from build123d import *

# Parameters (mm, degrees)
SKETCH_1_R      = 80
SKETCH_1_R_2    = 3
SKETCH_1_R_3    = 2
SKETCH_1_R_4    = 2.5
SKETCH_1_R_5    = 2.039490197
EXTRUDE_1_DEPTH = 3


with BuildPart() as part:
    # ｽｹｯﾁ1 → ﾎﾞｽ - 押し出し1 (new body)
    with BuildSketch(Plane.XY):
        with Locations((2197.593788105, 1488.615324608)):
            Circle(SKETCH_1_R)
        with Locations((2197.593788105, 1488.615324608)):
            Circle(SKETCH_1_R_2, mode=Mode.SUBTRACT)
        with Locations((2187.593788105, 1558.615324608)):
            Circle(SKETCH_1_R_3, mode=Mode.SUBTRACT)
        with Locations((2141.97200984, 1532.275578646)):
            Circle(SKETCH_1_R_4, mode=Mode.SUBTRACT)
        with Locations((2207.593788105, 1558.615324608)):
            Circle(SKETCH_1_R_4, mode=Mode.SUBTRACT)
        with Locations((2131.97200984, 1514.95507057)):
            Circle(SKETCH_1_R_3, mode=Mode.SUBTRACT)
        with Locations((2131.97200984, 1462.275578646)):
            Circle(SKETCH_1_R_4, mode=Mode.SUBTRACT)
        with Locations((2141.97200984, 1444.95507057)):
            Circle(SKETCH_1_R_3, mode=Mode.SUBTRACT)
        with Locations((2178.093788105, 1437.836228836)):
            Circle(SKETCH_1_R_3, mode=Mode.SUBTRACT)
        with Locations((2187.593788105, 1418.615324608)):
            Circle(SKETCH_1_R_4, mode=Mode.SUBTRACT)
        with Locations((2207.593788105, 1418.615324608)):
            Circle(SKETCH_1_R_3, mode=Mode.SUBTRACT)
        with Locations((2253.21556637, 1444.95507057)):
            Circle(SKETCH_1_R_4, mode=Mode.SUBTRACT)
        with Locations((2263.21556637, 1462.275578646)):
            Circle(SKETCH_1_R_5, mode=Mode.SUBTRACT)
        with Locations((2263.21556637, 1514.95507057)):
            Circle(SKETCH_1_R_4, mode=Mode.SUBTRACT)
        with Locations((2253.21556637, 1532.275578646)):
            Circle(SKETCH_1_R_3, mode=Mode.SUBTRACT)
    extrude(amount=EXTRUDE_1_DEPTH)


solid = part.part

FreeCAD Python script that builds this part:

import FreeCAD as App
import Part
import Sketcher

V = App.Vector

doc = App.newDocument("Part")
body = doc.addObject("PartDesign::Body", "Body")

# Sketch on XY plane
sketch1 = body.newObject("Sketcher::SketchObject", "Sketch")
sketch1.AttachmentSupport = (doc.getObject("XY_Plane"), [""])
sketch1.MapMode = "FlatFace"
sketch1.addGeometry(Part.Circle(V(2197.6, 1488.6, 0), V(0, 0, 1), 80), False)
sketch1.addGeometry(Part.Circle(V(2142, 1445, 0), V(0, 0, 1), 2), False)
sketch1.addGeometry(Part.Circle(V(2187.6, 1418.6, 0), V(0, 0, 1), 2.5), False)
sketch1.addGeometry(Part.Circle(V(2178.1, 1437.8, 0), V(0, 0, 1), 2), False)
sketch1.addGeometry(Part.Circle(V(2132, 1462.3, 0), V(0, 0, 1), 2.5), False)
sketch1.addGeometry(Part.Circle(V(2207.6, 1418.6, 0), V(0, 0, 1), 2), False)
sketch1.addGeometry(Part.Circle(V(2253.2, 1445, 0), V(0, 0, 1), 2.5), False)
sketch1.addGeometry(Part.Circle(V(2263.2, 1462.3, 0), V(0, 0, 1), 2), False)
sketch1.addGeometry(Part.Circle(V(2132, 1515, 0), V(0, 0, 1), 2), False)
sketch1.addGeometry(Part.Circle(V(2142, 1532.3, 0), V(0, 0, 1), 2.5), False)
sketch1.addGeometry(Part.Circle(V(2187.6, 1558.6, 0), V(0, 0, 1), 2), False)
sketch1.addGeometry(Part.Circle(V(2197.6, 1488.6, 0), V(0, 0, 1), 3), False)
sketch1.addGeometry(Part.Circle(V(2263.2, 1515, 0), V(0, 0, 1), 2.5), False)
sketch1.addGeometry(Part.Circle(V(2207.6, 1558.6, 0), V(0, 0, 1), 2.5), False)
sketch1.addGeometry(Part.Circle(V(2253.2, 1532.3, 0), V(0, 0, 1), 2), False)
sketch1.addConstraint(Sketcher.Constraint("Coincident", 11, 3, 0, 3))
sketch1.addConstraint(Sketcher.Constraint("Equal", 1, 3))
sketch1.addConstraint(Sketcher.Constraint("Equal", 2, 4))
sketch1.addConstraint(Sketcher.Constraint("Equal", 3, 5))
sketch1.addConstraint(Sketcher.Constraint("Equal", 4, 6))
sketch1.addConstraint(Sketcher.Constraint("Equal", 5, 8))
sketch1.addConstraint(Sketcher.Constraint("Equal", 6, 9))
sketch1.addConstraint(Sketcher.Constraint("Equal", 8, 10))
sketch1.addConstraint(Sketcher.Constraint("Equal", 9, 12))
sketch1.addConstraint(Sketcher.Constraint("Equal", 12, 13))
sketch1.addConstraint(Sketcher.Constraint("Equal", 10, 14))
sketch1.addConstraint(Sketcher.Constraint("Horizontal", 2, 3, 5, 3))
sketch1.addConstraint(Sketcher.Constraint("Horizontal", 1, 3, 6, 3))
sketch1.addConstraint(Sketcher.Constraint("Horizontal", 4, 3, 7, 3))
sketch1.addConstraint(Sketcher.Constraint("Horizontal", 8, 3, 12, 3))
sketch1.addConstraint(Sketcher.Constraint("Horizontal", 10, 3, 13, 3))
sketch1.addConstraint(Sketcher.Constraint("Horizontal", 9, 3, 14, 3))
sketch1.addConstraint(Sketcher.Constraint("Vertical", 4, 3, 8, 3))
sketch1.addConstraint(Sketcher.Constraint("Vertical", 1, 3, 9, 3))
sketch1.addConstraint(Sketcher.Constraint("Vertical", 2, 3, 10, 3))
sketch1.addConstraint(Sketcher.Constraint("Vertical", 7, 3, 12, 3))
sketch1.addConstraint(Sketcher.Constraint("Vertical", 5, 3, 13, 3))
sketch1.addConstraint(Sketcher.Constraint("Vertical", 6, 3, 14, 3))
sketch1.addConstraint(Sketcher.Constraint("Diameter", 0, 160.0))
sketch1.addConstraint(Sketcher.Constraint("Diameter", 1, 4.0))
sketch1.addConstraint(Sketcher.Constraint("Diameter", 2, 5.0))
sketch1.addConstraint(Sketcher.Constraint("Diameter", 11, 6.0))
sketch1.addConstraint(Sketcher.Constraint("DistanceX", 2, 3, 0, 3, 10.0))
sketch1.addConstraint(Sketcher.Constraint("DistanceY", 2, 3, 0, 3, 70.0))
sketch1.addConstraint(Sketcher.Constraint("DistanceX", 4, 3, 1, 3, 10.0))
sketch1.addConstraint(Sketcher.Constraint("DistanceX", 2, 3, 5, 3, 20.0))
sketch1.addConstraint(Sketcher.Constraint("DistanceX", 6, 3, 7, 3, 10.0))
sketch1.addConstraint(Sketcher.Constraint("DistanceY", 1, 3, 8, 3, 70.0))
sketch1.addConstraint(Sketcher.Constraint("DistanceY", 4, 3, 9, 3, 70.0))
sketch1.addConstraint(Sketcher.Constraint("DistanceY", 0, 3, 10, 3, 70.0))
sketch1.addConstraint(Sketcher.Constraint("DistanceX", 3, 3, 2, 3, 9.5))
sketch1.addConstraint(Sketcher.Constraint("Diameter", 7, 4.07898))
sketch1.addConstraint(Sketcher.Constraint("DistanceX", -1, 1, 0, 3, 2197.593788))
sketch1.addConstraint(Sketcher.Constraint("DistanceX", -1, 1, 1, 3, 2141.97201))
sketch1.addConstraint(Sketcher.Constraint("DistanceY", -1, 1, 1, 3, 1444.955071))
sketch1.addConstraint(Sketcher.Constraint("DistanceY", -1, 1, 3, 3, 1437.836229))
sketch1.addConstraint(Sketcher.Constraint("DistanceY", -1, 1, 4, 3, 1462.275579))
sketch1.addConstraint(Sketcher.Constraint("DistanceX", 5, 3, 6, 3, 45.621778))
sketch1.addConstraint(Sketcher.Constraint("DistanceY", -1, 1, 0, 3, 1488.615325))
pad1 = body.newObject("PartDesign::Pad", "Pad")
pad1.Profile = sketch1
pad1.Length = 3

doc.recompute()
